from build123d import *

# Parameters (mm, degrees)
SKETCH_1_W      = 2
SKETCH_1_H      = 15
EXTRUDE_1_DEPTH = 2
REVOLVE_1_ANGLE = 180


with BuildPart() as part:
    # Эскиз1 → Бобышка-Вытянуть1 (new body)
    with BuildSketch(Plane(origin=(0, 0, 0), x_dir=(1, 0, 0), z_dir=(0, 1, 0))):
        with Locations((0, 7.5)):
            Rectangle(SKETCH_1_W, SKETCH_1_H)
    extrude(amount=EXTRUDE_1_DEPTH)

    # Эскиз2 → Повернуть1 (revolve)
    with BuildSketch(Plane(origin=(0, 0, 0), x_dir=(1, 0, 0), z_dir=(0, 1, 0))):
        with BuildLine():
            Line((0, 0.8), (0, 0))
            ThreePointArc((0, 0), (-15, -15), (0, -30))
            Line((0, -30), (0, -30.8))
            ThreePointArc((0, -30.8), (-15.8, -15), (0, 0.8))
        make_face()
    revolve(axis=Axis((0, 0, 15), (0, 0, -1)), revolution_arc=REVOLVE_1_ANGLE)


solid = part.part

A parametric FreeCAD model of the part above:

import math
import FreeCAD as App
import Part
import Sketcher
Q = App.Units.Quantity


def add_polygon(sketch, points):
    """Adds a closed chain of lines whose ends are joined by coincident constraints."""
    first, n = sketch.GeometryCount, len(points)
    for a, b in zip(points, points[1:] + points[:1]):
        sketch.addGeometry(Part.LineSegment(App.Vector(*a, 0), App.Vector(*b, 0)), False)
    for i in range(n):
        sketch.addConstraint(Sketcher.Constraint("Coincident", first + i, 2, first + (i + 1) % n, 1))

doc = App.newDocument("Part")
body = doc.addObject("PartDesign::Body", "Body")

# Sketch on XZ plane
sketch1 = body.newObject("Sketcher::SketchObject", "Sketch")
sketch1.AttachmentSupport = (doc.getObject("XZ_Plane"), [""])
sketch1.MapMode = "FlatFace"
add_polygon(sketch1, [(-1, -15), (-1, 0), (1, 0), (1, -15)])  # lines 0-3
sketch1.addConstraint(Sketcher.Constraint("Vertical", 0))
sketch1.addConstraint(Sketcher.Constraint("Horizontal", 1))
sketch1.addConstraint(Sketcher.Constraint("Vertical", 2))
sketch1.addConstraint(Sketcher.Constraint("Horizontal", 3))
sketch1.addConstraint(Sketcher.Constraint("Symmetric", 0, 2, 1, 2, -1, 1))
sketch1.addConstraint(Sketcher.Constraint("DistanceX", 1, 1, 1, 2, Q("2 mm")))
sketch1.addConstraint(Sketcher.Constraint("DistanceY", 0, 1, 0, 2, Q("15 mm")))
pad1 = body.newObject("PartDesign::Pad", "Pad")
pad1.Profile = sketch1
pad1.Length = 2
pad1.Reversed = True

# Sketch on XZ plane
sketch2 = body.newObject("Sketcher::SketchObject", "Sketch001")
sketch2.AttachmentSupport = (doc.getObject("XZ_Plane"), [""])
sketch2.MapMode = "FlatFace"
sketch2.addGeometry(Part.LineSegment(App.Vector(0, 0, 0), App.Vector(0, -0.8, 0)), False)
sketch2.addGeometry(Part.ArcOfCircle(Part.Circle(App.Vector(0, 15, 0), App.Vector(0, 0, 1), 15.8), math.radians(90), math.radians(270)), False)
sketch2.addGeometry(Part.LineSegment(App.Vector(0, 30.8, 0), App.Vector(0, 30, 0)), False)
sketch2.addGeometry(Part.ArcOfCircle(Part.Circle(App.Vector(0, 15, 0), App.Vector(0, 0, 1), 15), math.radians(90), math.radians(270)), False)
sketch2.addConstraint(Sketcher.Constraint("Coincident", 0, 2, 1, 2))
sketch2.addConstraint(Sketcher.Constraint("Coincident", 1, 1, 2, 1))
sketch2.addConstraint(Sketcher.Constraint("Coincident", 2, 2, 3, 1))
sketch2.addConstraint(Sketcher.Constraint("Coincident", 3, 2, 0, 1))
sketch2.addConstraint(Sketcher.Constraint("Vertical", 0))
sketch2.addConstraint(Sketcher.Constraint("Vertical", 2))
sketch2.addConstraint(Sketcher.Constraint("Coincident", 3, 2, -1, 1))
sketch2.addConstraint(Sketcher.Constraint("Coincident", 3, 3, 1, 3))
sketch2.addConstraint(Sketcher.Constraint("PointOnObject", 1, 3, -2))
sketch2.addConstraint(Sketcher.Constraint("PointOnObject", 1, 1, -2))
sketch2.addConstraint(Sketcher.Constraint("Radius", 3, Q("15 mm")))
sketch2.addConstraint(Sketcher.Constraint("Radius", 1, Q("15.8 mm")))
revolution = body.newObject("PartDesign::Revolution", "Revolution")
revolution.Profile = sketch2
revolution.ReferenceAxis = (sketch2, ["V_Axis"])
revolution.Angle = 180
revolution.Reversed = True

doc.recompute()
